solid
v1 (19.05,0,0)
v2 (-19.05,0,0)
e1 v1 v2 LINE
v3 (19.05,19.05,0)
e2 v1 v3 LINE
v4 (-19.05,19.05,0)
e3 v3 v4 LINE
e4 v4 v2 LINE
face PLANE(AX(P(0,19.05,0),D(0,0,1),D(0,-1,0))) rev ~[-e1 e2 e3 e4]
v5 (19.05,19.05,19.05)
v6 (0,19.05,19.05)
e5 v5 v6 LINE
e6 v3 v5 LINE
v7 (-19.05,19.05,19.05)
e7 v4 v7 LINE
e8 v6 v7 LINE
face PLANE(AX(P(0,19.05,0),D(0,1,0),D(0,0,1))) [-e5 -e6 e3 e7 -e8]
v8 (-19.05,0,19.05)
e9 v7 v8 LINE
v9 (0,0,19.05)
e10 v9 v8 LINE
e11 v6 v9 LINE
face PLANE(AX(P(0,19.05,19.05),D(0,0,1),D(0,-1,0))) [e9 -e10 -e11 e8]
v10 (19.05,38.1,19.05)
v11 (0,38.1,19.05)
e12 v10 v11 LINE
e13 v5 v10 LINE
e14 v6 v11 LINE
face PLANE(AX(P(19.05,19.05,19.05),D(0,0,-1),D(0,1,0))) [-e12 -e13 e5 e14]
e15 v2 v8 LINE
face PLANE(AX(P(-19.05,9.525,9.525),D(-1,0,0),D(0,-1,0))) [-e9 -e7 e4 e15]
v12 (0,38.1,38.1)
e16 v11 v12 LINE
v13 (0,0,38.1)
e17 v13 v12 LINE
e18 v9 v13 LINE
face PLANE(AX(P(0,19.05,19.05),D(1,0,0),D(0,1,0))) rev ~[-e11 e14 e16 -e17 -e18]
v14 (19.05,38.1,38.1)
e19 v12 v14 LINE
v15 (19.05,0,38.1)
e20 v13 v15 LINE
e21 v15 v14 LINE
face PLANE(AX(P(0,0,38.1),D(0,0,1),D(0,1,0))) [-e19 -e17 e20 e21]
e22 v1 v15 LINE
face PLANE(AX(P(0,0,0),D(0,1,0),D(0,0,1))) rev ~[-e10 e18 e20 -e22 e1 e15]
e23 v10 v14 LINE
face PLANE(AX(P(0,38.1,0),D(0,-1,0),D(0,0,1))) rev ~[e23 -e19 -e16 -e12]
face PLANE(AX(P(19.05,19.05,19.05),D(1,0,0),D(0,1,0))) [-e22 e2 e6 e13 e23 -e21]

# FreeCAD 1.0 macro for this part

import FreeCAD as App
import Part
import Sketcher

V = App.Vector
Q = App.Units.Quantity


def add_polygon(sketch, points):
    """Adds a closed chain of lines whose ends are joined by coincident constraints."""
    first, n = sketch.GeometryCount, len(points)
    for a, b in zip(points, points[1:] + points[:1]):
        sketch.addGeometry(Part.LineSegment(App.Vector(*a, 0), App.Vector(*b, 0)), False)
    for i in range(n):
        sketch.addConstraint(Sketcher.Constraint("Coincident", first + i, 2, first + (i + 1) % n, 1))

doc = App.newDocument("Part")
params = doc.addObject("Spreadsheet::Sheet", "Params")
for row, (alias, value) in enumerate([
    ("sketch1_width", "1.5 in"),
    ("pad1_length", "0.75 in"),
    ("sketch2_width", "0.75 in"),
    ("pocket1_length", "0.75 in"),
    ("sketch3_width", "0.75 in"),
    ("pad2_length", "0.75 in"),
], start=1):
    params.set(f"A{row}", alias)
    params.set(f"B{row}", "=" + value)
    params.setAlias(f"B{row}", alias)

body = doc.addObject("PartDesign::Body", "Body")

# Sketch on YZ plane
sketch1 = body.newObject("Sketcher::SketchObject", "Sketch")
sketch1.AttachmentSupport = (doc.getObject("YZ_Plane"), [""])
sketch1.MapMode = "FlatFace"
add_polygon(sketch1, [(0, 38), (0, 0), (38, 0), (38, 38)])  # lines 0-3
sketch1.addConstraint([
    Sketcher.Constraint("Vertical", 0),
    Sketcher.Constraint("Horizontal", 1),
    Sketcher.Constraint("Vertical", 2),
    Sketcher.Constraint("Horizontal", 3),
    Sketcher.Constraint("Coincident", 0, 2, -1, 1),
    Sketcher.Constraint("Equal", 3, 0),
    Sketcher.Constraint("DistanceX", 1, 1, 1, 2, Q("1.5 in")),
])
sketch1.setExpression("Constraints[10]", "Params.sketch1_width")
pad1 = body.newObject("PartDesign::Pad", "Pad")
pad1.Profile = sketch1
pad1.setExpression("Length", "Params.pad1_length")

# Sketch on YZ plane
sketch2 = body.newObject("Sketcher::SketchObject", "Sketch001")
sketch2.AttachmentSupport = (doc.getObject("YZ_Plane"), [""])
sketch2.MapMode = "FlatFace"
sketch2.AttachmentOffset = App.Placement(V(0, 0, 0.75 * 25.4), App.Rotation())
add_polygon(sketch2, [(19, 19), (19, 0), (38, 0), (38, 19)])  # lines 0-3
sketch2.addConstraint([
    Sketcher.Constraint("Vertical", 0),
    Sketcher.Constraint("Horizontal", 1),
    Sketcher.Constraint("Vertical", 2),
    Sketcher.Constraint("Horizontal", 3),
    Sketcher.Constraint("PointOnObject", 0, 2, -1),
    Sketcher.Constraint("Equal", 3, 0),
    Sketcher.Constraint("DistanceX", 1, 1, 1, 2, Q("0.75 in")),
    Sketcher.Constraint("DistanceX", -1, 1, 1, 2, Q("1.5 in")),
])
sketch2.setExpression("Constraints[10]", "Params.sketch2_width")
pocket1 = body.newObject("PartDesign::Pocket", "Pocket")
pocket1.Profile = sketch2
pocket1.setExpression("Length", "Params.pocket1_length")

# Sketch on YZ plane
sketch3 = body.newObject("Sketcher::SketchObject", "Sketch002")
sketch3.AttachmentSupport = (doc.getObject("YZ_Plane"), [""])
sketch3.MapMode = "FlatFace"
add_polygon(sketch3, [(19, 19), (19, 0), (0, 0), (0, 19)])  # lines 0-3
sketch3.addConstraint([
    Sketcher.Constraint("Vertical", 0),
    Sketcher.Constraint("Horizontal", 1),
    Sketcher.Constraint("Vertical", 2),
    Sketcher.Constraint("Horizontal", 3),
    Sketcher.Constraint("Coincident", 1, 2, -1, 1),
    Sketcher.Constraint("Equal", 3, 0),
    Sketcher.Constraint("DistanceX", 1, 2, 1, 1, Q("0.75 in")),
])
sketch3.setExpression("Constraints[10]", "Params.sketch3_width")
pad2 = body.newObject("PartDesign::Pad", "Pad001")
pad2.Profile = sketch3
pad2.setExpression("Length", "Params.pad2_length")
pad2.Reversed = True

doc.recompute()
